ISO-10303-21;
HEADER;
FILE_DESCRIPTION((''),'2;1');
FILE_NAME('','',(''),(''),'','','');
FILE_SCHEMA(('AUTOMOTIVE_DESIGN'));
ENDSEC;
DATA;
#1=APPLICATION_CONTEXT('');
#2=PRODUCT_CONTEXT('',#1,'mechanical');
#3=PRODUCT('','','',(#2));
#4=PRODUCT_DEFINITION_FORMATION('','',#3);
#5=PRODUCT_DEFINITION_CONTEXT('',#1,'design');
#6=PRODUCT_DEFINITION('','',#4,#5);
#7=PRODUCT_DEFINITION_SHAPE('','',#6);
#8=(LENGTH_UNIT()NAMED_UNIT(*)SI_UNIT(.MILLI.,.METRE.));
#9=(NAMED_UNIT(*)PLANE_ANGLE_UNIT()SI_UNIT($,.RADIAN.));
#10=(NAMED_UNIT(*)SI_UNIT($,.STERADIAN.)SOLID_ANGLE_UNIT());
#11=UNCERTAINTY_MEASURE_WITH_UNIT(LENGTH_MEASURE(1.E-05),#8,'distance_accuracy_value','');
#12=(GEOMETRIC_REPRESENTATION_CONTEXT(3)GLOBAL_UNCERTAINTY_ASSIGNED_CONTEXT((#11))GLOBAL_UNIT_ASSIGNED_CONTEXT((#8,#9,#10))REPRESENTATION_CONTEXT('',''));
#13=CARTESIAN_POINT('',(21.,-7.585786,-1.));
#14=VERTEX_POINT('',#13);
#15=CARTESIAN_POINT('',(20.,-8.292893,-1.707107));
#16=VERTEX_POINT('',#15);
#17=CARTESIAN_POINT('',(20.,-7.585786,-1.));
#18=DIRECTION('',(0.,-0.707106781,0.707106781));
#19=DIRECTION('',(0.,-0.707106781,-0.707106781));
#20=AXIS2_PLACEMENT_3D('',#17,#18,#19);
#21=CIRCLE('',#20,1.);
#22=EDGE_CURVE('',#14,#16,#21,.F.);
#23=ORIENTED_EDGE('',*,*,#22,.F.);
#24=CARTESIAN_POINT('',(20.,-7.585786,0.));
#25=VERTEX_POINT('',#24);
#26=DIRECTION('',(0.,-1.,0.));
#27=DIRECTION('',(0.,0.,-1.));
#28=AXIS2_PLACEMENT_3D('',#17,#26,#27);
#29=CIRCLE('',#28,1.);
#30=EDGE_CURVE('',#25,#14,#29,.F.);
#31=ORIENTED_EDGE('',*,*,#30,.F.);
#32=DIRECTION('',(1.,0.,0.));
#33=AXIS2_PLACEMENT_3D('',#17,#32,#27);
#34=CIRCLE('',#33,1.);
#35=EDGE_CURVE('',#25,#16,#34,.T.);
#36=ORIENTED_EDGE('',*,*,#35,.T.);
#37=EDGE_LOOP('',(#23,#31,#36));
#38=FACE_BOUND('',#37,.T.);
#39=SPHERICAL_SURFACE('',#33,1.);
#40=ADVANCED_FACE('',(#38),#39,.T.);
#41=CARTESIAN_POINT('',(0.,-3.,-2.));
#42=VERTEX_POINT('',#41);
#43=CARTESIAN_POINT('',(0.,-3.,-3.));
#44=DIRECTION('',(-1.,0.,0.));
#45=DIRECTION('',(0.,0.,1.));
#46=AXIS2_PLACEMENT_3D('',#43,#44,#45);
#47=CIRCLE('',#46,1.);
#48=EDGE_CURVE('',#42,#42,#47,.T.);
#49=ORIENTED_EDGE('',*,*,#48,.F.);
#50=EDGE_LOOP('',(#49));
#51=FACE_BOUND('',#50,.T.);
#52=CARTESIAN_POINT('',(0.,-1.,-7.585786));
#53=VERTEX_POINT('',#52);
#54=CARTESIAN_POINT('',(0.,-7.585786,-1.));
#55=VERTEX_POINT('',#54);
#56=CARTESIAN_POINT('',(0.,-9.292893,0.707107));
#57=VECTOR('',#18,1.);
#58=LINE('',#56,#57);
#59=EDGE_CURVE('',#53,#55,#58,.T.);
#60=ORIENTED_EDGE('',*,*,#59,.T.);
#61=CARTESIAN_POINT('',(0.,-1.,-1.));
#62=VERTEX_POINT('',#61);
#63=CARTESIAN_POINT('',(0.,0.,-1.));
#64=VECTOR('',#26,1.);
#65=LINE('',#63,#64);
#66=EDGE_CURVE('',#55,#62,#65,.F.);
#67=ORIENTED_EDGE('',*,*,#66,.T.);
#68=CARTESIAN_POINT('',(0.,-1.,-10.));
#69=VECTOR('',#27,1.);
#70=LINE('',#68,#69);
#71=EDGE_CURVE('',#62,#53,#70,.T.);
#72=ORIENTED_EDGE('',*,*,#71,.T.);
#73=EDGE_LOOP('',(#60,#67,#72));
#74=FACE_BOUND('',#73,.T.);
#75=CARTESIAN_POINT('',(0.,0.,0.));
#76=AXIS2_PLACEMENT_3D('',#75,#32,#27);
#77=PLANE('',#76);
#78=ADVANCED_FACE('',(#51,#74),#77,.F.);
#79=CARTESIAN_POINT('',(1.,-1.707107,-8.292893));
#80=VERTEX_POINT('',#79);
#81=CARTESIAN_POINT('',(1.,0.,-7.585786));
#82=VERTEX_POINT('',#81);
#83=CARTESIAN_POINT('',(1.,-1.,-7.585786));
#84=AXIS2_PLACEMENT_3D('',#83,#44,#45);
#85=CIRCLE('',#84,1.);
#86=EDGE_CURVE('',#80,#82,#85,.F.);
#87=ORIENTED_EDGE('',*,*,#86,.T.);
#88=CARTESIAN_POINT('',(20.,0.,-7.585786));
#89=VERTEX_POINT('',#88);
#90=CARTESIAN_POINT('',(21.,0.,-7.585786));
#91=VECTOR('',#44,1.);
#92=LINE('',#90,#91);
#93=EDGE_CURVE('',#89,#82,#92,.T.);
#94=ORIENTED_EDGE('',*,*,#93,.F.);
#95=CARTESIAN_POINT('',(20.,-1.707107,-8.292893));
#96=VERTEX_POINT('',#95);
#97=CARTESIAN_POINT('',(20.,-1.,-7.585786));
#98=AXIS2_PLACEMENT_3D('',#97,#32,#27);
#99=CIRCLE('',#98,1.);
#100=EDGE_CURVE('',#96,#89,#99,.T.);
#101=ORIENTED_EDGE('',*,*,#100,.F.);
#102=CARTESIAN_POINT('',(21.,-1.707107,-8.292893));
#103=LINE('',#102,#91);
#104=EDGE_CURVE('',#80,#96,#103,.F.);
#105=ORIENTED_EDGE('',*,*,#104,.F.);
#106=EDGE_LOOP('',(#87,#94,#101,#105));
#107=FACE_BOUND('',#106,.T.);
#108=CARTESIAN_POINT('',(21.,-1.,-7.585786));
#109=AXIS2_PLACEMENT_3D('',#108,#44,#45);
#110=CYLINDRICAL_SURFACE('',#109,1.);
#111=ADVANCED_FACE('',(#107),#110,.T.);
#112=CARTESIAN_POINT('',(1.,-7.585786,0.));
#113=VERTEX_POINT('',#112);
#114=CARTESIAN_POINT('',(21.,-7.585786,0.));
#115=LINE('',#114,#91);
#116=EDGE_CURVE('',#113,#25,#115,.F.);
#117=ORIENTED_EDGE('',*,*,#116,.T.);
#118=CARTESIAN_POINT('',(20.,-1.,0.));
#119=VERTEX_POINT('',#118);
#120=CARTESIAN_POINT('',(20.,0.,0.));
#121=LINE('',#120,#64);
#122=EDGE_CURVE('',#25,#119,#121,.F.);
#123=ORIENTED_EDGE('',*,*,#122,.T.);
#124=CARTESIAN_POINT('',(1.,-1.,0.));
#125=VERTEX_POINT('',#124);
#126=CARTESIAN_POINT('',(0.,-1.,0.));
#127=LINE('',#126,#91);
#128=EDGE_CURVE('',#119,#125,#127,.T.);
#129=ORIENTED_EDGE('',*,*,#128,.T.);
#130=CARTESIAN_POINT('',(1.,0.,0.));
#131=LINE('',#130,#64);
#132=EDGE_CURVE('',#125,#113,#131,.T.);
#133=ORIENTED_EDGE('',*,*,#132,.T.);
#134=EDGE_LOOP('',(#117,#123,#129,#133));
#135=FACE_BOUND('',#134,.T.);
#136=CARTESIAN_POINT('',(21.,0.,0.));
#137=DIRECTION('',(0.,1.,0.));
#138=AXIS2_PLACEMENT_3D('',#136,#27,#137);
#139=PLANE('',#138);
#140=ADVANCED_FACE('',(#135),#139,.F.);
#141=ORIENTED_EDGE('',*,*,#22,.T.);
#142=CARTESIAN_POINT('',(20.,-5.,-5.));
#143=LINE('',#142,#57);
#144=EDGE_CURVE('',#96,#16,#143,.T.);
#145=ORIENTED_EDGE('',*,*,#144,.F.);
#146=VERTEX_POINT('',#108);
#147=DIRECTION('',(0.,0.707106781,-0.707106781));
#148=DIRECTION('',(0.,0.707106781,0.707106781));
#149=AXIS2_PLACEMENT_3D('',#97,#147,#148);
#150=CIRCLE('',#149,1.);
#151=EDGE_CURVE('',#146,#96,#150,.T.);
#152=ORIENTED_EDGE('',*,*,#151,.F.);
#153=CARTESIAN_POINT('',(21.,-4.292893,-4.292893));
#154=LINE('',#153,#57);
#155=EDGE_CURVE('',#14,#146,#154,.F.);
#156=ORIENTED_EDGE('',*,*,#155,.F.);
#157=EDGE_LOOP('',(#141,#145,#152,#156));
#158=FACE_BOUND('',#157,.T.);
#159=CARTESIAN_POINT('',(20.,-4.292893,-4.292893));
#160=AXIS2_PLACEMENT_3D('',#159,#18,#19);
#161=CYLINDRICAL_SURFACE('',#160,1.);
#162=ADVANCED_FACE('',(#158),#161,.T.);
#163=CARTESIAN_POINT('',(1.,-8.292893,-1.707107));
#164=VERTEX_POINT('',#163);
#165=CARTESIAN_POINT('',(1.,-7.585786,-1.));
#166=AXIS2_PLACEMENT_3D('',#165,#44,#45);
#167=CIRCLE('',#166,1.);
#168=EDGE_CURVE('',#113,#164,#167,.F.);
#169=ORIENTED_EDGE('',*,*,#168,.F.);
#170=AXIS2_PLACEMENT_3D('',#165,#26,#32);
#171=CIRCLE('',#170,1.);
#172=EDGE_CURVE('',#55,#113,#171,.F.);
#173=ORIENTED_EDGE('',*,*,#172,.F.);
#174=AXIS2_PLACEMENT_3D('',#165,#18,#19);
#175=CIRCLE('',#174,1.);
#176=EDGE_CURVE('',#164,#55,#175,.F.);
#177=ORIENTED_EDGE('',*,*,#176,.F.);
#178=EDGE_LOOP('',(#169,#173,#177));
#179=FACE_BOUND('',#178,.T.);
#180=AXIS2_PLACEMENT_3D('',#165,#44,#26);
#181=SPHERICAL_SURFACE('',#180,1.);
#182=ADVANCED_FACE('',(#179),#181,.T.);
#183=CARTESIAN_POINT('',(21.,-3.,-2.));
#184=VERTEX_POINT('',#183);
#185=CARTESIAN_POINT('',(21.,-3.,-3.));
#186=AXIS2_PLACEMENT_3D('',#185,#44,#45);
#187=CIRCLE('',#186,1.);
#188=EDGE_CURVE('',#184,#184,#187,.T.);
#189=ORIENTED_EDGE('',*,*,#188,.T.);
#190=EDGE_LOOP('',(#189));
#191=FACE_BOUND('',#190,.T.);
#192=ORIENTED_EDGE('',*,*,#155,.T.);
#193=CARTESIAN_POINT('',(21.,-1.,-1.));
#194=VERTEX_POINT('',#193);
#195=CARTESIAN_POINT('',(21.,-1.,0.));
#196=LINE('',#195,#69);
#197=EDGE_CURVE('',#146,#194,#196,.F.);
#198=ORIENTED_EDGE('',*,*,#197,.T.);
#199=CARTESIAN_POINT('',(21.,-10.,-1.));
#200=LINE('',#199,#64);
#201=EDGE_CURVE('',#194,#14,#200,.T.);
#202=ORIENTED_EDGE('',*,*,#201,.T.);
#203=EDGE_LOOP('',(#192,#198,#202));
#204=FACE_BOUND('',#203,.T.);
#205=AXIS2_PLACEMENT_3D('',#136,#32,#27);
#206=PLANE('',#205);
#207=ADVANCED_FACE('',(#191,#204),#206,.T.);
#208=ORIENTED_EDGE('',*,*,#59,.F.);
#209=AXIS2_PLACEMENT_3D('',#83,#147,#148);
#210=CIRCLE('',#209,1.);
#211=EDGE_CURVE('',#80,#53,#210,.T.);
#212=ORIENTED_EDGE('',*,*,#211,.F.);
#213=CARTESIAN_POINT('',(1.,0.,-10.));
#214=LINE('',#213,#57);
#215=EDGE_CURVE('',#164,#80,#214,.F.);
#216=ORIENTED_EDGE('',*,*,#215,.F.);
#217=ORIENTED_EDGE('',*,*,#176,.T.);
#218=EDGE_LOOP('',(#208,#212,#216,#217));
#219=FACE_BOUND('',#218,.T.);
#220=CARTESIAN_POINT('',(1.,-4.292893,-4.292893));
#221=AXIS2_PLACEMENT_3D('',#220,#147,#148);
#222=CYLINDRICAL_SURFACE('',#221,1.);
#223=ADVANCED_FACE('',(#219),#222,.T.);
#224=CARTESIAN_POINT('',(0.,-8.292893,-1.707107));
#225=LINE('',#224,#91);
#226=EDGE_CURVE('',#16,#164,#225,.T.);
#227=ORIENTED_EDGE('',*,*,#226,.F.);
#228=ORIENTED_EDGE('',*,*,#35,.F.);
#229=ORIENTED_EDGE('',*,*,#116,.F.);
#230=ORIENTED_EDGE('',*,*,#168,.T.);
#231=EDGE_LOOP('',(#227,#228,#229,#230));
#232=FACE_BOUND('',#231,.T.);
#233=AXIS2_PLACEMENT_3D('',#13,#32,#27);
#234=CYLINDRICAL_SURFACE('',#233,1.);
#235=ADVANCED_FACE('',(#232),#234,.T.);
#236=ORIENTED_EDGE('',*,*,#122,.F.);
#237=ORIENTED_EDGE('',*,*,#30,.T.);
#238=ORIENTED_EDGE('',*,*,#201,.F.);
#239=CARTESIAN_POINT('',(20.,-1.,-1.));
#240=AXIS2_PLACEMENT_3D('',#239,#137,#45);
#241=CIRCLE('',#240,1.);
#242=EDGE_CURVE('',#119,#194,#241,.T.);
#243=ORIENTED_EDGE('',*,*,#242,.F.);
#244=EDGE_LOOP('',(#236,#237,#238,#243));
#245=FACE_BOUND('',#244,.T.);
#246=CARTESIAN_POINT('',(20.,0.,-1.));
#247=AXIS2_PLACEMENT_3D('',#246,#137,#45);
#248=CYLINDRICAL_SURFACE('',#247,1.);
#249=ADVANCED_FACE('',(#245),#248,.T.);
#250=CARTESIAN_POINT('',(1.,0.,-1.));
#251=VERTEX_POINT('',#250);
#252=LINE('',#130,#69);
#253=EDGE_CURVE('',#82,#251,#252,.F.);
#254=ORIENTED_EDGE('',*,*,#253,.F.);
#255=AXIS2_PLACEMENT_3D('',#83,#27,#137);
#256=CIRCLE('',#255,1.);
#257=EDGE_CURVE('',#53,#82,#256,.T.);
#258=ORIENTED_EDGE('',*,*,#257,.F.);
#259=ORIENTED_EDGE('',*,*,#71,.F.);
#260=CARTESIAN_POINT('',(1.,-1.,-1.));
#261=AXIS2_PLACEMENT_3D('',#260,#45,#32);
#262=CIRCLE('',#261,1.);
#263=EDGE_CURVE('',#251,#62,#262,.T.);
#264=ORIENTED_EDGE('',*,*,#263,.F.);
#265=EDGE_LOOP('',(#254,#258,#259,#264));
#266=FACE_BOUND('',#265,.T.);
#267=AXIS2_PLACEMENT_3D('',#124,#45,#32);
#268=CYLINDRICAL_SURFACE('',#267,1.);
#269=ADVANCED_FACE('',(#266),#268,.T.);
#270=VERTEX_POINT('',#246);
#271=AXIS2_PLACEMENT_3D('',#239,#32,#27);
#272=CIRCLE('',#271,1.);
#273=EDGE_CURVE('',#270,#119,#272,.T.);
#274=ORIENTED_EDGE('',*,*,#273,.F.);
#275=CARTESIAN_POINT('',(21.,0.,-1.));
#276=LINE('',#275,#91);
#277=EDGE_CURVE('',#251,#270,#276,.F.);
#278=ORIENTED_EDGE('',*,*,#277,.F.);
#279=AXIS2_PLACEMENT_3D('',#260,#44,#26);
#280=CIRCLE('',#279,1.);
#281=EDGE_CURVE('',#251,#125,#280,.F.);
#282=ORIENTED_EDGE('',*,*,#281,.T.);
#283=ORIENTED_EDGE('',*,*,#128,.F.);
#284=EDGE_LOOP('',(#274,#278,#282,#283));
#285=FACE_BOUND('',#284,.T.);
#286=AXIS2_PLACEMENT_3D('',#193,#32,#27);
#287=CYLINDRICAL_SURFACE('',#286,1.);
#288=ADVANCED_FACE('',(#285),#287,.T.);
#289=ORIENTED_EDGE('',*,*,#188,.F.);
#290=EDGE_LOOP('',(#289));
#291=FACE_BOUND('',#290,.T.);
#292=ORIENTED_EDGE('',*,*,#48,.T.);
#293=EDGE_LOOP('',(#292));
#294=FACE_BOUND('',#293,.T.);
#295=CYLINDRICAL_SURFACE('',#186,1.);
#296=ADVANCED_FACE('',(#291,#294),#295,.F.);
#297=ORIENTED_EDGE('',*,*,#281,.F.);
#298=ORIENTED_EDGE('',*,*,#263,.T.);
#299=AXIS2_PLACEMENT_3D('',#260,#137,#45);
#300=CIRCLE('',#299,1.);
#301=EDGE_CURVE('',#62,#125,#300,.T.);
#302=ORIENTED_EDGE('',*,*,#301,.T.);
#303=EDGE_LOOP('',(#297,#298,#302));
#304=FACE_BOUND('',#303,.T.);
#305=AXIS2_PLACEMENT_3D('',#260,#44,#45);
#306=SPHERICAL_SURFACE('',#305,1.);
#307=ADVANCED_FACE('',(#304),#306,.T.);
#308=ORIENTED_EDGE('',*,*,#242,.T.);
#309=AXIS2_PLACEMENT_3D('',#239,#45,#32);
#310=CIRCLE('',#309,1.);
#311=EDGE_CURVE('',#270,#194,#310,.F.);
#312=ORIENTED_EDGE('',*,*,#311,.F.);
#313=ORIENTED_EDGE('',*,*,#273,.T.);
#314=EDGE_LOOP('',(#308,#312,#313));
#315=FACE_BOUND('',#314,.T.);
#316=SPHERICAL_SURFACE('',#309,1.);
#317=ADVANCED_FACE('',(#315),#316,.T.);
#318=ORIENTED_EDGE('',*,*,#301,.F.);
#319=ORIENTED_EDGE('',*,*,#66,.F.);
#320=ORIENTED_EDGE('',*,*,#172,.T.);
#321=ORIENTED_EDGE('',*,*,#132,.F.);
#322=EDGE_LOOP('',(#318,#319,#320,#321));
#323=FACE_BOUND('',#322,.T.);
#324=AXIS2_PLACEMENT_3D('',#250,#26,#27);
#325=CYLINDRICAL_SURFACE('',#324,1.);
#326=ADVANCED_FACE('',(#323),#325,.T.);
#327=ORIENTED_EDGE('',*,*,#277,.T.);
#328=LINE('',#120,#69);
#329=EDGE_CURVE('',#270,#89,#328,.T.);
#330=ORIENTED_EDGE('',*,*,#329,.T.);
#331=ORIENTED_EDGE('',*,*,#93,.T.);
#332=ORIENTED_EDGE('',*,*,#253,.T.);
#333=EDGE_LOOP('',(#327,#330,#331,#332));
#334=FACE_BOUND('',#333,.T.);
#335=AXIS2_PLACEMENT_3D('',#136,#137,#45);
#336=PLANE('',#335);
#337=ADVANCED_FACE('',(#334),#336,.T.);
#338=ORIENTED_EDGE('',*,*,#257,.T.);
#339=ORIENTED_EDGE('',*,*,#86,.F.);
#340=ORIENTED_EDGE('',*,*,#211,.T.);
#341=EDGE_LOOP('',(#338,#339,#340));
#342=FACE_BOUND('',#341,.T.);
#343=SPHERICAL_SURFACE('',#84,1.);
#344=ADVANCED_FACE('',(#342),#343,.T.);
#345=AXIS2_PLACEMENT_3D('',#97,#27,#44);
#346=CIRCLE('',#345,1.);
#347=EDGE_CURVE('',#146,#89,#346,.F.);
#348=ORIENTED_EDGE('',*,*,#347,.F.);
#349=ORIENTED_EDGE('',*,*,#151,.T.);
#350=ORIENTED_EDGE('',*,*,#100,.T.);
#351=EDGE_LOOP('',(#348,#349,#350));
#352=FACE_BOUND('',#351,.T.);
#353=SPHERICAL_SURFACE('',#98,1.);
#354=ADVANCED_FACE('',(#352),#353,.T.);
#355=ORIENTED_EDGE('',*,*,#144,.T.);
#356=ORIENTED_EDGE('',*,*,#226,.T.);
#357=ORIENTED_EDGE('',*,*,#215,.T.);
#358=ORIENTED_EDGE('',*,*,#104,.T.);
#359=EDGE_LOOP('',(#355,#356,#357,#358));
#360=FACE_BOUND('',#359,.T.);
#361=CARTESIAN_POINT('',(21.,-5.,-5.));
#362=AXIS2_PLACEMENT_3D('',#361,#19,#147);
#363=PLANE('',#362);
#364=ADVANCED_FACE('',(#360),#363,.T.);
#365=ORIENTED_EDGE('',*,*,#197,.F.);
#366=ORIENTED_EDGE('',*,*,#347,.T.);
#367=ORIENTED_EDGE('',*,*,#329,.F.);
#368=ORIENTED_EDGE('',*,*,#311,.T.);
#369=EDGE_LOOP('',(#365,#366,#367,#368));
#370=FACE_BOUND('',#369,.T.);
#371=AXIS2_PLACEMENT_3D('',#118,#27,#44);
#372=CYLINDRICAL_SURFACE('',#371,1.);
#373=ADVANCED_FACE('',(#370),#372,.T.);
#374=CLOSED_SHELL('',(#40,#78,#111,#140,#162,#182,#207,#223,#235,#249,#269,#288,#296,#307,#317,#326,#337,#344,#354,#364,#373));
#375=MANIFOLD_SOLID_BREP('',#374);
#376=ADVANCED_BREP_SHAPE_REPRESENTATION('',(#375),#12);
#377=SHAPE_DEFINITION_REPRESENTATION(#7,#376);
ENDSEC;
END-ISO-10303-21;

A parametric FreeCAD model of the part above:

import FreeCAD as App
import Part
import Sketcher

V = App.Vector


def edges_at(feature, points):
    """Names of the edges that pass closest to the given points."""
    edges = feature.Shape.Edges
    near = lambda p: min(range(len(edges)), key=lambda i: edges[i].distToShape(Part.Vertex(*p))[0])
    return sorted({f"Edge{near(p) + 1}" for p in points})


def add_polygon(sketch, points):
    """Adds a closed chain of lines whose ends are joined by coincident constraints."""
    first, n = sketch.GeometryCount, len(points)
    for a, b in zip(points, points[1:] + points[:1]):
        sketch.addGeometry(Part.LineSegment(App.Vector(*a, 0), App.Vector(*b, 0)), False)
    for i in range(n):
        sketch.addConstraint(Sketcher.Constraint("Coincident", first + i, 2, first + (i + 1) % n, 1))

doc = App.newDocument("Part")
body = doc.addObject("PartDesign::Body", "Body")

sketch1 = body.newObject("Sketcher::SketchObject", "Sketch")
sketch1.AttachmentSupport = (doc.getObject("YZ_Plane"), [""])
sketch1.MapMode = "FlatFace"
add_polygon(sketch1, [(0, -10), (0, 0), (-10, 0)])
sketch1.addConstraint([
    Sketcher.Constraint("Vertical", 0),
    Sketcher.Constraint("Horizontal", 1),
    Sketcher.Constraint("Coincident", 0, 2, -1, 1),
    Sketcher.Constraint("Equal", 1, 0),
    Sketcher.Constraint("DistanceX", 1, 2, 1, 1, 10.0),
])
pad1 = body.newObject("PartDesign::Pad", "Pad")
pad1.Profile = sketch1
pad1.Length = 21

sketch2 = body.newObject("Sketcher::SketchObject", "Sketch001")
sketch2.AttachmentSupport = (doc.getObject("YZ_Plane"), [""])
sketch2.MapMode = "FlatFace"
sketch2.addGeometry(Part.Circle(V(-3, -3, 0), V(0, 0, 1), 1), False)
sketch2.addConstraint([
    Sketcher.Constraint("Diameter", 0, 2.0),
    Sketcher.Constraint("DistanceX", 0, 3, -1, 1, 3.0),
    Sketcher.Constraint("DistanceY", 0, 3, -1, 1, 3.0),
])
pocket1 = body.newObject("PartDesign::Pocket", "Pocket")
pocket1.Profile = sketch2
pocket1.Type = "ThroughAll"
pocket1.Reversed = True
doc.recompute()

fillet = body.newObject("PartDesign::Fillet", "Fillet")
fillet.Base = (pocket1, edges_at(pocket1, [
    (21, -5, 0),
    (21, -5, -5),
    (0, -5, -5),
    (0, -5, 0),
    (0, 0, -5),
    (21, 0, -5),
    (10.5, 0, -10),
    (10.5, -10, 0),
    (10.5, 0, 0),
]))
fillet.Radius = 1

doc.recompute()
